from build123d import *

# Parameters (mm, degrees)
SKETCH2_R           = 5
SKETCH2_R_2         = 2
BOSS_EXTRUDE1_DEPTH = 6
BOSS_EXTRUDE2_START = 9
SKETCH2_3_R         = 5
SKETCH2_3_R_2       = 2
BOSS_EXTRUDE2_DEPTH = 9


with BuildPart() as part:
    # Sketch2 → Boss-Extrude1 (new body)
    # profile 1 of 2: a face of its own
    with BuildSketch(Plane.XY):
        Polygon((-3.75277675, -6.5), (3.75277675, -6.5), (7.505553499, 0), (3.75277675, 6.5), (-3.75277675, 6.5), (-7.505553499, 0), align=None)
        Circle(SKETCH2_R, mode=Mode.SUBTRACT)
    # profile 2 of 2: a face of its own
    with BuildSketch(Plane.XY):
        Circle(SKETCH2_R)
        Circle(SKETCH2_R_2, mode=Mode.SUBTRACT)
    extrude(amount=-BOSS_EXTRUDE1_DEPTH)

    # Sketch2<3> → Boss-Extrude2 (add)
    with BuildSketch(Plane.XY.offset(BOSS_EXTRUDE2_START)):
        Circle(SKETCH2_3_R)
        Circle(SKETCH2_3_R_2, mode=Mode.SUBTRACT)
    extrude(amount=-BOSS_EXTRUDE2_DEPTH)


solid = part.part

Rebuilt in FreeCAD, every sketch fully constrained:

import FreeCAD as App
import Part
import Sketcher
from FreeCAD import Vector
Q = App.Units.Quantity


def add_polygon(sketch, points):
    """Adds a closed chain of lines whose ends are joined by coincident constraints."""
    first, n = sketch.GeometryCount, len(points)
    for a, b in zip(points, points[1:] + points[:1]):
        sketch.addGeometry(Part.LineSegment(App.Vector(*a, 0), App.Vector(*b, 0)), False)
    for i in range(n):
        sketch.addConstraint(Sketcher.Constraint("Coincident", first + i, 2, first + (i + 1) % n, 1))

doc = App.newDocument("Part")
body = doc.addObject("PartDesign::Body", "Body")

sketch1 = body.newObject("Sketcher::SketchObject", "Sketch")
sketch1.AttachmentSupport = (doc.getObject("XY_Plane"), [""])
sketch1.MapMode = "FlatFace"
add_polygon(sketch1, [(-3.8, -6.5), (3.8, -6.5), (7.5, 0), (3.8, 6.5), (-3.8, 6.5), (-7.5, 0)])
sketch1.addGeometry(Part.Circle(Vector(0, 0, 0), Vector(0, 0, 1), 2), False)
sketch1.addConstraint([
    Sketcher.Constraint("Horizontal", 0),
    Sketcher.Constraint("Horizontal", 3),
    Sketcher.Constraint("Coincident", 6, 3, -1, 1),
    Sketcher.Constraint("Symmetric", 0, 2, 3, 2, -1, 1),
    Sketcher.Constraint("Symmetric", 1, 2, 4, 2, -1, 1),
    Sketcher.Constraint("PointOnObject", 1, 2, -1),
    Sketcher.Constraint("Parallel", 2, 5),
    Sketcher.Constraint("Vertical", 0, 2, 2, 2),
    Sketcher.Constraint("Diameter", 6, 4.0),
    Sketcher.Constraint("Angle", 1, Q("60 deg")),
    Sketcher.Constraint("DistanceY", 0, 2, 2, 2, 13.0),
    Sketcher.Constraint("DistanceX", 0, 1, 0, 2, 7.505554),
])
pad1 = body.newObject("PartDesign::Pad", "Pad")
pad1.Profile = sketch1
pad1.Length = 6
pad1.Reversed = True

sketch2 = body.newObject("Sketcher::SketchObject", "Sketch001")
sketch2.AttachmentSupport = (doc.getObject("XY_Plane"), [""])
sketch2.MapMode = "FlatFace"
sketch2.AttachmentOffset = App.Placement(Vector(0, 0, 9), App.Rotation())
sketch2.addGeometry([
    Part.Circle(Vector(0, 0, 0), Vector(0, 0, 1), 5),
    Part.Circle(Vector(0, 0, 0), Vector(0, 0, 1), 2),
], False)
sketch2.addConstraint([
    Sketcher.Constraint("Coincident", 0, 3, -1, 1),
    Sketcher.Constraint("Coincident", 1, 3, -1, 1),
    Sketcher.Constraint("Diameter", 0, 10.0),
    Sketcher.Constraint("Diameter", 1, 4.0),
])
pad2 = body.newObject("PartDesign::Pad", "Pad001")
pad2.Profile = sketch2
pad2.Length = 9
pad2.Reversed = True

doc.recompute()
